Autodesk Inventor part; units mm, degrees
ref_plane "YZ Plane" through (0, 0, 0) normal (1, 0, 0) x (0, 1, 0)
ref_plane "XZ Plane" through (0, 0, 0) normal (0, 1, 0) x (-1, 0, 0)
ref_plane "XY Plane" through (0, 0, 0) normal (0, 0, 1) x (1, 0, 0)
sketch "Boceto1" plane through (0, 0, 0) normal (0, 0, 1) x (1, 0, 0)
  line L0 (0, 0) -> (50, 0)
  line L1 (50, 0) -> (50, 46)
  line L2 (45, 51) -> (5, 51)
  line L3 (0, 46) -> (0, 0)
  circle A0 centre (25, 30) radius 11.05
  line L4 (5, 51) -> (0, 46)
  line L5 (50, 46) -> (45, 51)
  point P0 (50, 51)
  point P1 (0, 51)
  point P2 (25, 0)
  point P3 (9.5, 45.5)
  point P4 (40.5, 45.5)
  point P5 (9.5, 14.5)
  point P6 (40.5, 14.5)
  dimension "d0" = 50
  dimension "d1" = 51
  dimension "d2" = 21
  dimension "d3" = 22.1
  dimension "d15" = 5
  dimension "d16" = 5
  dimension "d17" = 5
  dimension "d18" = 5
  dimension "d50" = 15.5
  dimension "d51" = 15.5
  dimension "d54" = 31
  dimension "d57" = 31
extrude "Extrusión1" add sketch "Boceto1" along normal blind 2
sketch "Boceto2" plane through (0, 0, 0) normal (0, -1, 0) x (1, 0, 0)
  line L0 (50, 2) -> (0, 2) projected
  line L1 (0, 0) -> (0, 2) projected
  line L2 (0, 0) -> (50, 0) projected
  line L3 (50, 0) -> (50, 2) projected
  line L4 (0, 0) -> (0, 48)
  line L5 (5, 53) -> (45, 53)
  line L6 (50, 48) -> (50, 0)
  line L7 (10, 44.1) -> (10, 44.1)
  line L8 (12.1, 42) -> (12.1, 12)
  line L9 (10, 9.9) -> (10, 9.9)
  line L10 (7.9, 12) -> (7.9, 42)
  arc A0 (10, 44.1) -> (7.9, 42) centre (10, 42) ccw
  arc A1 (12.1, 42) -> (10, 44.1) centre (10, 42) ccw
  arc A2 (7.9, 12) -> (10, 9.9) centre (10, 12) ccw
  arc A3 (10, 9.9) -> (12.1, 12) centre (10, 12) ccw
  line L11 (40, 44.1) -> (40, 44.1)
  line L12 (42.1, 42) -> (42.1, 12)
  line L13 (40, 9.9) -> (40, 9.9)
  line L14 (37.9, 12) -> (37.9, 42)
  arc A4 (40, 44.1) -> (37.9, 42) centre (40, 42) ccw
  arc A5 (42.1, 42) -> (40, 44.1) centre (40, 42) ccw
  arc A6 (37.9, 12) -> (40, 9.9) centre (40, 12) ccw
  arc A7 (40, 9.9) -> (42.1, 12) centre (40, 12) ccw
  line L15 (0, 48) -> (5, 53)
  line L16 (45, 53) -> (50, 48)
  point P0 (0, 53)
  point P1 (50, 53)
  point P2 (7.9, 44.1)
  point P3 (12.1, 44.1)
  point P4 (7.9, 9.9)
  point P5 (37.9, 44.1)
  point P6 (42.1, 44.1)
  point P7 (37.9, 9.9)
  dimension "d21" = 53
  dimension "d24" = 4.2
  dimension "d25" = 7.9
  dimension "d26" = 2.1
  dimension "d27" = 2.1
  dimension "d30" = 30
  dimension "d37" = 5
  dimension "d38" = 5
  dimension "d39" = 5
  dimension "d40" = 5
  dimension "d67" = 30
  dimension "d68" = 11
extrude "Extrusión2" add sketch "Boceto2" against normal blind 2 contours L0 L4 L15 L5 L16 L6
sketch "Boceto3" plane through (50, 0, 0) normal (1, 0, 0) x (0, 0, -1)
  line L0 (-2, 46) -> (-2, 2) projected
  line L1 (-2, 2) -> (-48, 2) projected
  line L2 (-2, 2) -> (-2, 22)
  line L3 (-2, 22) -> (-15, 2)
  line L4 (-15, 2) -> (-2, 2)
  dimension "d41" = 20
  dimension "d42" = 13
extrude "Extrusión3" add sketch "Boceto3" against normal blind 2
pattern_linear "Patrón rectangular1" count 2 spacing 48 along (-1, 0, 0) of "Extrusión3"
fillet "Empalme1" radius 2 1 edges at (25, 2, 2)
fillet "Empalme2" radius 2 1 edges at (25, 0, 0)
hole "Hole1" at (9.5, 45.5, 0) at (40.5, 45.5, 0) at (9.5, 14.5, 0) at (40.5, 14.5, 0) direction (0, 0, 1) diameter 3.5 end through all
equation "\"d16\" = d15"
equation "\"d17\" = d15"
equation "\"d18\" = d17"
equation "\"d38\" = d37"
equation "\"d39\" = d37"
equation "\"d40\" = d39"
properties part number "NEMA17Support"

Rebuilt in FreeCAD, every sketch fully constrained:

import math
import FreeCAD as App
import Part
import Sketcher

V = App.Vector
Q = App.Units.Quantity


def edges_at(feature, points):
    """Names of the edges that pass closest to the given points."""
    edges = feature.Shape.Edges
    near = lambda p: min(range(len(edges)), key=lambda i: edges[i].distToShape(Part.Vertex(*p))[0])
    return sorted({f"Edge{near(p) + 1}" for p in points})


def add_polygon(sketch, points):
    """Adds a closed chain of lines whose ends are joined by coincident constraints."""
    first, n = sketch.GeometryCount, len(points)
    for a, b in zip(points, points[1:] + points[:1]):
        sketch.addGeometry(Part.LineSegment(App.Vector(*a, 0), App.Vector(*b, 0)), False)
    for i in range(n):
        sketch.addConstraint(Sketcher.Constraint("Coincident", first + i, 2, first + (i + 1) % n, 1))

doc = App.newDocument("Part")
body = doc.addObject("PartDesign::Body", "Body")

sketch1 = body.newObject("Sketcher::SketchObject", "Sketch")
sketch1.AttachmentSupport = (doc.getObject("XY_Plane"), [""])
sketch1.MapMode = "FlatFace"
add_polygon(sketch1, [(0, 46), (0, 0), (50, 0), (50, 46), (45, 51), (5, 51)])
sketch1.addGeometry(Part.Circle(V(25, 30, 0), V(0, 0, 1), 11), False)
sketch1.addConstraint(Sketcher.Constraint("Vertical", 0))
sketch1.addConstraint(Sketcher.Constraint("Horizontal", 1))
sketch1.addConstraint(Sketcher.Constraint("Vertical", 2))
sketch1.addConstraint(Sketcher.Constraint("Horizontal", 4))
sketch1.addConstraint(Sketcher.Constraint("Coincident", 0, 2, -1, 1))
sketch1.addConstraint(Sketcher.Constraint("Perpendicular", 3, 5))
sketch1.addConstraint(Sketcher.Constraint("Horizontal", 2, 2, 5, 2))
sketch1.addConstraint(Sketcher.Constraint("Equal", 3, 5))
sketch1.addConstraint(Sketcher.Constraint("Diameter", 6, Q("22.1 mm")))
sketch1.addConstraint(Sketcher.Constraint("DistanceX", 1, 1, 1, 2, Q("50 mm")))
sketch1.addConstraint(Sketcher.Constraint("DistanceY", -1, 1, 3, 2, Q("51 mm")))
sketch1.addConstraint(Sketcher.Constraint("DistanceX", -1, 1, 4, 2, Q("5 mm")))
sketch1.addConstraint(Sketcher.Constraint("DistanceY", 6, 3, 3, 2, Q("21 mm")))
sketch1.addConstraint(Sketcher.Constraint("DistanceX", -1, 1, 6, 3, Q("25 mm")))
pad1 = body.newObject("PartDesign::Pad", "Pad")
pad1.Profile = sketch1
pad1.Length = 2

sketch2 = body.newObject("Sketcher::SketchObject", "Sketch001")
sketch2.AttachmentSupport = (doc.getObject("XZ_Plane"), [""])
sketch2.MapMode = "FlatFace"
add_polygon(sketch2, [(0, 2), (50, 2), (50, 48), (45, 53), (5, 53), (0, 48)])
sketch2.addGeometry(Part.ArcOfCircle(Part.Circle(V(10, 42, 0), V(0, 0, 1), 2.1), math.radians(0), math.radians(180)), False)
sketch2.addGeometry(Part.LineSegment(V(12.1, 42, 0), V(12.1, 12, 0)), False)
sketch2.addGeometry(Part.ArcOfCircle(Part.Circle(V(10, 12, 0), V(0, 0, 1), 2.1), math.radians(180), math.radians(360)), False)
sketch2.addGeometry(Part.LineSegment(V(7.9, 12, 0), V(7.9, 42, 0)), False)
sketch2.addGeometry(Part.ArcOfCircle(Part.Circle(V(40, 42, 0), V(0, 0, 1), 2.1), math.radians(0), math.radians(180)), False)
sketch2.addGeometry(Part.LineSegment(V(42.1, 42, 0), V(42.1, 12, 0)), False)
sketch2.addGeometry(Part.ArcOfCircle(Part.Circle(V(40, 12, 0), V(0, 0, 1), 2.1), math.radians(180), math.radians(360)), False)
sketch2.addGeometry(Part.LineSegment(V(37.9, 12, 0), V(37.9, 42, 0)), False)
sketch2.addConstraint(Sketcher.Constraint("Tangent", 6, 1, 7, 1))
sketch2.addConstraint(Sketcher.Constraint("Tangent", 7, 2, 8, 2))
sketch2.addConstraint(Sketcher.Constraint("Tangent", 8, 1, 9, 1))
sketch2.addConstraint(Sketcher.Constraint("Tangent", 9, 2, 6, 2))
sketch2.addConstraint(Sketcher.Constraint("Tangent", 10, 1, 11, 1))
sketch2.addConstraint(Sketcher.Constraint("Tangent", 11, 2, 12, 2))
sketch2.addConstraint(Sketcher.Constraint("Tangent", 12, 1, 13, 1))
sketch2.addConstraint(Sketcher.Constraint("Tangent", 13, 2, 10, 2))
sketch2.addConstraint(Sketcher.Constraint("Horizontal", 0))
sketch2.addConstraint(Sketcher.Constraint("Vertical", 1))
sketch2.addConstraint(Sketcher.Constraint("Horizontal", 3))
sketch2.addConstraint(Sketcher.Constraint("Vertical", 5))
sketch2.addConstraint(Sketcher.Constraint("Vertical", 7))
sketch2.addConstraint(Sketcher.Constraint("Vertical", 9))
sketch2.addConstraint(Sketcher.Constraint("Vertical", 11))
sketch2.addConstraint(Sketcher.Constraint("Vertical", 13))
sketch2.addConstraint(Sketcher.Constraint("Equal", 8, 10))
sketch2.addConstraint(Sketcher.Constraint("PointOnObject", 4, 2, -2))
sketch2.addConstraint(Sketcher.Constraint("Perpendicular", 2, 4))
sketch2.addConstraint(Sketcher.Constraint("Horizontal", 6, 3, 10, 3))
sketch2.addConstraint(Sketcher.Constraint("Horizontal", 8, 3, 12, 3))
sketch2.addConstraint(Sketcher.Constraint("Horizontal", 1, 2, 4, 2))
sketch2.addConstraint(Sketcher.Constraint("Equal", 2, 4))
sketch2.addConstraint(Sketcher.Constraint("Radius", 6, Q("2.1 mm")))
sketch2.addConstraint(Sketcher.Constraint("DistanceY", 7, 2, 7, 1, Q("30 mm")))
sketch2.addConstraint(Sketcher.Constraint("DistanceX", -1, 1, 6, 3, Q("10 mm")))
sketch2.addConstraint(Sketcher.Constraint("DistanceY", -1, 1, 2, 2, Q("53 mm")))
sketch2.addConstraint(Sketcher.Constraint("DistanceX", -1, 1, 3, 2, Q("5 mm")))
sketch2.addConstraint(Sketcher.Constraint("DistanceX", 6, 3, 10, 3, Q("30 mm")))
sketch2.addConstraint(Sketcher.Constraint("DistanceX", 12, 3, 0, 2, Q("10 mm")))
sketch2.addConstraint(Sketcher.Constraint("DistanceY", 0, 2, 12, 3, Q("10 mm")))
sketch2.addConstraint(Sketcher.Constraint("DistanceY", 10, 3, 2, 2, Q("11 mm")))
pad2 = body.newObject("PartDesign::Pad", "Pad001")
pad2.Profile = sketch2
pad2.Length = 2
pad2.Reversed = True

sketch3 = body.newObject("Sketcher::SketchObject", "Sketch002")
sketch3.AttachmentSupport = (doc.getObject("YZ_Plane"), [""])
sketch3.MapMode = "FlatFace"
sketch3.AttachmentOffset = App.Placement(V(0, 0, 50), App.Rotation())
add_polygon(sketch3, [(2, 2), (22, 2), (2, 15)])
sketch3.addConstraint(Sketcher.Constraint("Horizontal", 0))
sketch3.addConstraint(Sketcher.Constraint("Vertical", 2))
sketch3.addConstraint(Sketcher.Constraint("DistanceX", 0, 1, 0, 2, Q("20 mm")))
sketch3.addConstraint(Sketcher.Constraint("DistanceY", 2, 2, 2, 1, Q("13 mm")))
sketch3.addConstraint(Sketcher.Constraint("DistanceX", -1, 1, 0, 2, Q("22 mm")))
sketch3.addConstraint(Sketcher.Constraint("DistanceY", -1, 1, 0, 2, Q("2 mm")))
pad3 = body.newObject("PartDesign::Pad", "Pad002")
pad3.Profile = sketch3
pad3.Length = 2
pad3.Reversed = True
doc.recompute()

linearpattern = body.newObject("PartDesign::LinearPattern", "LinearPattern")
linearpattern.Originals = [pad3]
linearpattern.Direction = (doc.getObject("X_Axis"), [""])
linearpattern.Mode = "offset"
linearpattern.Offset = 48
linearpattern.Occurrences = 2
linearpattern.Reversed = True
body.Tip = linearpattern
doc.recompute()

fillet = body.newObject("PartDesign::Fillet", "Fillet")
fillet.Base = (linearpattern, edges_at(linearpattern, [(25, 2, 2)]))
fillet.Radius = 2
doc.recompute()

fillet2 = body.newObject("PartDesign::Fillet", "Fillet001")
fillet2.Base = (fillet, edges_at(fillet, [(25, 0, 0)]))
fillet2.Radius = 2

sketch4 = body.newObject("Sketcher::SketchObject", "Sketch003")
sketch4.AttachmentSupport = (doc.getObject("XY_Plane"), [""])
sketch4.MapMode = "FlatFace"
sketch4.addGeometry(Part.Circle(V(9.5, 45.5, 0), V(0, 0, 1), 1.8), False)
sketch4.addGeometry(Part.Circle(V(40.5, 45.5, 0), V(0, 0, 1), 1.8), False)
sketch4.addGeometry(Part.Circle(V(9.5, 14.5, 0), V(0, 0, 1), 1.8), False)
sketch4.addGeometry(Part.Circle(V(40.5, 14.5, 0), V(0, 0, 1), 1.8), False)
sketch4.addConstraint(Sketcher.Constraint("Equal", 0, 1))
sketch4.addConstraint(Sketcher.Constraint("Equal", 1, 2))
sketch4.addConstraint(Sketcher.Constraint("Equal", 2, 3))
sketch4.addConstraint(Sketcher.Constraint("Horizontal", 0, 3, 1, 3))
sketch4.addConstraint(Sketcher.Constraint("Horizontal", 2, 3, 3, 3))
sketch4.addConstraint(Sketcher.Constraint("Vertical", 0, 3, 2, 3))
sketch4.addConstraint(Sketcher.Constraint("Vertical", 1, 3, 3, 3))
sketch4.addConstraint(Sketcher.Constraint("Diameter", 0, Q("3.5 mm")))
sketch4.addConstraint(Sketcher.Constraint("DistanceX", 0, 3, 1, 3, Q("31 mm")))
sketch4.addConstraint(Sketcher.Constraint("DistanceY", 2, 3, 0, 3, Q("31 mm")))
sketch4.addConstraint(Sketcher.Constraint("DistanceX", -1, 1, 0, 3, Q("9.5 mm")))
sketch4.addConstraint(Sketcher.Constraint("DistanceY", -1, 1, 0, 3, Q("45.5 mm")))
doc.recompute()
hole = body.newObject("PartDesign::Hole", "Hole")
hole.Profile = sketch4
hole.ThreadType = "None"
hole.Diameter = 3.5
hole.DepthType = "ThroughAll"
hole.Reversed = True

doc.recompute()
